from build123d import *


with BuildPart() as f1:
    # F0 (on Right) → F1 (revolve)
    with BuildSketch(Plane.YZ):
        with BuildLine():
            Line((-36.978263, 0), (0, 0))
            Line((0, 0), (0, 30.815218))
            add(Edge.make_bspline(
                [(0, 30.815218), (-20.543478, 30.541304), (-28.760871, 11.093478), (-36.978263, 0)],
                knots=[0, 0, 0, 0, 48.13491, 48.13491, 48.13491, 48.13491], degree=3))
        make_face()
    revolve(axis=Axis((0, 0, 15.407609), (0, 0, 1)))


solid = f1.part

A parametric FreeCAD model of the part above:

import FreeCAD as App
import Part
import Sketcher
from FreeCAD import Vector

doc = App.newDocument("Part")
body = doc.addObject("PartDesign::Body", "Body")

# Sketch on YZ plane
sketch1 = doc.addObject("Sketcher::SketchObject", "Sketch")
body.addObject(sketch1)
sketch1.AttachmentSupport = (doc.YZ_Plane, [""])
sketch1.MapMode = "FlatFace"
sketch1.addGeometry(Part.LineSegment(Vector(-36.978263, 0, 0), Vector(0, 0, 0)), False)
sketch1.addGeometry(Part.LineSegment(Vector(0, 0, 0), Vector(0, 30.815218, 0)), False)
sketch1.addGeometry(Part.BSplineCurve([Vector(0, 30.815218, 0), Vector(-20.543478, 30.541304, 0), Vector(-28.760871, 11.093478, 0), Vector(-36.978263, 0, 0)], [4, 4], [0, 48.13491], False, 3, [1, 1, 1, 1], False), False)
sketch1.addConstraint(Sketcher.Constraint("Block", 2))
sketch1.addConstraint(Sketcher.Constraint("Coincident", 0, 2, 1, 1))
sketch1.addConstraint(Sketcher.Constraint("Coincident", 1, 2, 2, 1))
sketch1.addConstraint(Sketcher.Constraint("Coincident", 2, 2, 0, 1))
sketch1.addConstraint(Sketcher.Constraint("Horizontal", 0))
sketch1.addConstraint(Sketcher.Constraint("Vertical", 1))
revolution = doc.addObject("PartDesign::Revolution", "Revolution")
body.addObject(revolution)
revolution.Profile = sketch1
revolution.ReferenceAxis = (sketch1, ["V_Axis"])
revolution.Angle = 360

doc.recompute()
